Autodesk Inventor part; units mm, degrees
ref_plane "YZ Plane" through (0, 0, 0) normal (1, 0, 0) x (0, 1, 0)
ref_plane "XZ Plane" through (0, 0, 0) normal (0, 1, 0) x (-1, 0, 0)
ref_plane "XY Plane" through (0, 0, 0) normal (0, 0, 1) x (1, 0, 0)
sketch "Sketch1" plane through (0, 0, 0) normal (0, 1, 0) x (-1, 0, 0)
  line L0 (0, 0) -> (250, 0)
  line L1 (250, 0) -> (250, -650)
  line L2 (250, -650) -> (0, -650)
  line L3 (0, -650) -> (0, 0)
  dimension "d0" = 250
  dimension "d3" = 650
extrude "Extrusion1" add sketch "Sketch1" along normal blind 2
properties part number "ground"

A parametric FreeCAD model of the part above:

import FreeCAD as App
import Part
import Sketcher
from FreeCAD import Vector

doc = App.newDocument("Part")
body = doc.addObject("PartDesign::Body", "Body")

# Sketch on XZ plane
sketch1 = body.newObject("Sketcher::SketchObject", "Sketch")
sketch1.AttachmentSupport = (doc.getObject("XZ_Plane"), [""])
sketch1.MapMode = "FlatFace"
sketch1.addGeometry(Part.LineSegment(Vector(-250, 0, 0), Vector(0, 0, 0)), False)
sketch1.addGeometry(Part.LineSegment(Vector(0, 0, 0), Vector(0, -650, 0)), False)
sketch1.addGeometry(Part.LineSegment(Vector(0, -650, 0), Vector(-250, -650, 0)), False)
sketch1.addGeometry(Part.LineSegment(Vector(-250, -650, 0), Vector(-250, 0, 0)), False)
sketch1.addConstraint(Sketcher.Constraint("Coincident", 0, 2, 1, 1))
sketch1.addConstraint(Sketcher.Constraint("Coincident", 1, 2, 2, 1))
sketch1.addConstraint(Sketcher.Constraint("Coincident", 2, 2, 3, 1))
sketch1.addConstraint(Sketcher.Constraint("Coincident", 3, 2, 0, 1))
sketch1.addConstraint(Sketcher.Constraint("Horizontal", 0))
sketch1.addConstraint(Sketcher.Constraint("Vertical", 1))
sketch1.addConstraint(Sketcher.Constraint("Horizontal", 2))
sketch1.addConstraint(Sketcher.Constraint("Vertical", 3))
sketch1.addConstraint(Sketcher.Constraint("Coincident", 0, 2, -1, 1))
sketch1.addConstraint(Sketcher.Constraint("DistanceX", 0, 1, 0, 2, 250.0))
sketch1.addConstraint(Sketcher.Constraint("DistanceY", 1, 2, 1, 1, 650.0))
pad1 = body.newObject("PartDesign::Pad", "Pad")
pad1.Profile = sketch1
pad1.Length = 2
pad1.Reversed = True

doc.recompute()
